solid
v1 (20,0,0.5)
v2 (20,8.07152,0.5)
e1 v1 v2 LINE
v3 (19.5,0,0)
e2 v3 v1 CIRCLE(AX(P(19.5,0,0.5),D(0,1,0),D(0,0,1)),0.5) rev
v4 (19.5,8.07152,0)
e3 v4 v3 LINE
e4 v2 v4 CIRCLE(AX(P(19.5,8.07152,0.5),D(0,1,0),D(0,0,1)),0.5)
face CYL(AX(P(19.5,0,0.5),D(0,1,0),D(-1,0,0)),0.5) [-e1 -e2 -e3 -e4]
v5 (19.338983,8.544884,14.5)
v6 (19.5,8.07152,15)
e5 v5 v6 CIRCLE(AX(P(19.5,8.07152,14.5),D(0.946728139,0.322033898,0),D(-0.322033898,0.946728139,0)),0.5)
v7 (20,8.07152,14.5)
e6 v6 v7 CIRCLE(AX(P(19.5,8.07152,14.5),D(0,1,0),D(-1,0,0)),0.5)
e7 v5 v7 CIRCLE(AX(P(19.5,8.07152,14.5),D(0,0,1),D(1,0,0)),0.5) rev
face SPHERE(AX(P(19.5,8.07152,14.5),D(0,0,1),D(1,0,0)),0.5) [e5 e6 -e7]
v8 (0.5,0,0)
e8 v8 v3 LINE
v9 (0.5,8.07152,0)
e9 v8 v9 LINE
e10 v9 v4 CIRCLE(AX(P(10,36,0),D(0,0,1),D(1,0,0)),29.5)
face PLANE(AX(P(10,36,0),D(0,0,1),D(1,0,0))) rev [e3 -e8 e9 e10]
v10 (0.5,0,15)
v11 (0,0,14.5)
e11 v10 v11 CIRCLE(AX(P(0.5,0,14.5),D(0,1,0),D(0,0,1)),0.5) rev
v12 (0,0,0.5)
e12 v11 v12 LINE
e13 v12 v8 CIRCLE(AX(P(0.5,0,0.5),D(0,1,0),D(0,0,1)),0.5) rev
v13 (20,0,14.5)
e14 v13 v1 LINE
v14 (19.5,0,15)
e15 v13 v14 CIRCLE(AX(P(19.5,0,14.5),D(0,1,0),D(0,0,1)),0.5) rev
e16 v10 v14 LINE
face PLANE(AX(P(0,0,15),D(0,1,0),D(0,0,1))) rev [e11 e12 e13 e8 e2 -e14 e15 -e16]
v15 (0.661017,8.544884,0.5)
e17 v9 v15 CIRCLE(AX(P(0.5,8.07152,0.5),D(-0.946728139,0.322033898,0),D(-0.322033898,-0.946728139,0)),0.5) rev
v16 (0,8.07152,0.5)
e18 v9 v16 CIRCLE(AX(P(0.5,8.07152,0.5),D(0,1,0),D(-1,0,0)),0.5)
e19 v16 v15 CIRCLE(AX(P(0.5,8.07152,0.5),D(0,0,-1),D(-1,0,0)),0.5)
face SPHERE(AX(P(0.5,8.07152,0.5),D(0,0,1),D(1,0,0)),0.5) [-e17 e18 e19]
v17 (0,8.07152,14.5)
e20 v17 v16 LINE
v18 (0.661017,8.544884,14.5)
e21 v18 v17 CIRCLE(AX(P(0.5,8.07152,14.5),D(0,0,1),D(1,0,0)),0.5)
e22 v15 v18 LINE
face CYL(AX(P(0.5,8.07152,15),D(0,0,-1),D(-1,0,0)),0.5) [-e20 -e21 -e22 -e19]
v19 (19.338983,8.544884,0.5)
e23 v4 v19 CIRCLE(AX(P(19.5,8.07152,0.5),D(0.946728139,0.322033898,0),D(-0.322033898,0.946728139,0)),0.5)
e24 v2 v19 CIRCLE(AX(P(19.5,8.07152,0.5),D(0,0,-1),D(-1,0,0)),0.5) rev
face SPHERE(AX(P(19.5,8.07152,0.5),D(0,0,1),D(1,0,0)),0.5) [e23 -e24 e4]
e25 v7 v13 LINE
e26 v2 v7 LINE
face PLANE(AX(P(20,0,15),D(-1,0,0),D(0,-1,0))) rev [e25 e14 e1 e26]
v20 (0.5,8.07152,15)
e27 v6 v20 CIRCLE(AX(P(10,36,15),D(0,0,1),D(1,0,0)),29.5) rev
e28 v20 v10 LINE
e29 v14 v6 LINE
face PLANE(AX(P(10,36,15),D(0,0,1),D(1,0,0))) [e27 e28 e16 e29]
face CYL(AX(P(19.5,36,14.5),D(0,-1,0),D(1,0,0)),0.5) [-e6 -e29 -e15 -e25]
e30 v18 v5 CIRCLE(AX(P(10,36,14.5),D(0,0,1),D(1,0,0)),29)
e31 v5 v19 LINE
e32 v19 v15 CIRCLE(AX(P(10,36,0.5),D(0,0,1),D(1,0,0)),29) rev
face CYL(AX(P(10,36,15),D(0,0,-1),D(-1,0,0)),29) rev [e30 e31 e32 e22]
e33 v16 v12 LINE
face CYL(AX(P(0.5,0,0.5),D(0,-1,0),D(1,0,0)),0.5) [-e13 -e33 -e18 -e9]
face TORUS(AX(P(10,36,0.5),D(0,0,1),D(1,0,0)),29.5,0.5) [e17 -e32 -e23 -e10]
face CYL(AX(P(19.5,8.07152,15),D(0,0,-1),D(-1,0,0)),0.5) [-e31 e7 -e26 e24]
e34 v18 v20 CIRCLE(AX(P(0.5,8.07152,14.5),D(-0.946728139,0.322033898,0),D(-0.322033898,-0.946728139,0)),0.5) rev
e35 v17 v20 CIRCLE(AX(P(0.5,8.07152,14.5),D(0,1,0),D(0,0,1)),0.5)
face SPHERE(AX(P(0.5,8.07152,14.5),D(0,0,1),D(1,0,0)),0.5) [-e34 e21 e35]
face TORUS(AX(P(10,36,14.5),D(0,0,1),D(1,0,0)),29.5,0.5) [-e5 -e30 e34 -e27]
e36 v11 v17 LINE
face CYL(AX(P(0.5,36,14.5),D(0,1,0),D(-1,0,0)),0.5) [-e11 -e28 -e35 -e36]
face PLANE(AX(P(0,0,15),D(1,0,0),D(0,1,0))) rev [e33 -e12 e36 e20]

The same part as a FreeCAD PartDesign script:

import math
import FreeCAD as App
import Part
import Sketcher

V = App.Vector
Q = App.Units.Quantity


def edges_at(feature, points):
    """Names of the edges that pass closest to the given points."""
    edges = feature.Shape.Edges
    near = lambda p: min(range(len(edges)), key=lambda i: edges[i].distToShape(Part.Vertex(*p))[0])
    return sorted({f"Edge{near(p) + 1}" for p in points})

doc = App.newDocument("Part")
body = doc.addObject("PartDesign::Body", "Body")

sketch1 = body.newObject("Sketcher::SketchObject", "Sketch")
sketch1.AttachmentSupport = (doc.getObject("XY_Plane"), [""])
sketch1.MapMode = "FlatFace"
sketch1.addGeometry([
    Part.LineSegment(V(0, 0, 0), V(20, 0, 0)),
    Part.LineSegment(V(20, 0, 0), V(20, 9, 0)),
    Part.ArcOfCircle(Part.Circle(V(10, 36, 0), V(0, 0, 1), 29), math.radians(-110), math.radians(-70)),
    Part.LineSegment(V(0, 9, 0), V(0, 0, 0)),
], False)
sketch1.addConstraint([
    Sketcher.Constraint("Coincident", 0, 2, 1, 1),
    Sketcher.Constraint("Coincident", 1, 2, 2, 2),
    Sketcher.Constraint("Coincident", 2, 1, 3, 1),
    Sketcher.Constraint("Coincident", 3, 2, 0, 1),
    Sketcher.Constraint("Horizontal", 0),
    Sketcher.Constraint("Vertical", 1),
    Sketcher.Constraint("Vertical", 3),
    Sketcher.Constraint("Coincident", 3, 2, -1, 1),
    Sketcher.Constraint("Horizontal", 1, 2, 2, 1),
    Sketcher.Constraint("Radius", 2, Q("29 mm")),
    Sketcher.Constraint("DistanceX", 0, 1, 0, 2, Q("20 mm")),
    Sketcher.Constraint("DistanceY", -1, 1, 2, 3, Q("36 mm")),
])
pad1 = body.newObject("PartDesign::Pad", "Pad")
pad1.Profile = sketch1
pad1.Length = 15
doc.recompute()

fillet = body.newObject("PartDesign::Fillet", "Fillet")
fillet.Base = (pad1, edges_at(pad1, [
    (20, 4.389, 15),
    (10, 7, 15),
    (0, 4.389, 15),
    (10, 7, 0),
    (20, 4.389, 0),
    (0, 4.389, 0),
    (0, 8.779, 7.5),
    (20, 8.779, 7.5),
]))
fillet.Radius = 0.5

doc.recompute()
